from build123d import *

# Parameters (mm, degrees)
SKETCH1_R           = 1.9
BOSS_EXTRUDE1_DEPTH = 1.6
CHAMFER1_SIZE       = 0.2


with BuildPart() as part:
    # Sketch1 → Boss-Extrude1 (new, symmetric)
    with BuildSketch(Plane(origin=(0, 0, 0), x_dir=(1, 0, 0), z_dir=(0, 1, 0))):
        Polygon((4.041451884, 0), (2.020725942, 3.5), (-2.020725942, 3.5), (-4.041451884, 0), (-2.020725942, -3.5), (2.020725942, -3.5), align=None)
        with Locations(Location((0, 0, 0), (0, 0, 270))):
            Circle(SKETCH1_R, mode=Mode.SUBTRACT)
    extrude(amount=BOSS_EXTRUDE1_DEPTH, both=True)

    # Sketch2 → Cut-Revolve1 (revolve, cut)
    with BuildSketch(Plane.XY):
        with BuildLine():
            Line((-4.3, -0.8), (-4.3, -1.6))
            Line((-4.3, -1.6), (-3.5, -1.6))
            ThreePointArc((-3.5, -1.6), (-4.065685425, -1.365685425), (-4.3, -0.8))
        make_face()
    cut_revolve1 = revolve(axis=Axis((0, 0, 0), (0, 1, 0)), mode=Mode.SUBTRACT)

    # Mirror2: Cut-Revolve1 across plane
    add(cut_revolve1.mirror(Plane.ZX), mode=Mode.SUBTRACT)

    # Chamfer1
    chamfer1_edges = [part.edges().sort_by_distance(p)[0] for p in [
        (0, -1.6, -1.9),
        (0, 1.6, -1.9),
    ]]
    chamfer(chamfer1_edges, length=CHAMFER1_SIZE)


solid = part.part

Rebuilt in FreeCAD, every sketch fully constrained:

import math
import FreeCAD as App
import Part
import Sketcher

V = App.Vector
Q = App.Units.Quantity


def edges_at(feature, points):
    """Names of the edges that pass closest to the given points."""
    edges = feature.Shape.Edges
    near = lambda p: min(range(len(edges)), key=lambda i: edges[i].distToShape(Part.Vertex(*p))[0])
    return sorted({f"Edge{near(p) + 1}" for p in points})


def add_polygon(sketch, points):
    """Adds a closed chain of lines whose ends are joined by coincident constraints."""
    first, n = sketch.GeometryCount, len(points)
    for a, b in zip(points, points[1:] + points[:1]):
        sketch.addGeometry(Part.LineSegment(App.Vector(*a, 0), App.Vector(*b, 0)), False)
    for i in range(n):
        sketch.addConstraint(Sketcher.Constraint("Coincident", first + i, 2, first + (i + 1) % n, 1))

doc = App.newDocument("Part")
body = doc.addObject("PartDesign::Body", "Body")

# Sketch on XZ plane
sketch1 = body.newObject("Sketcher::SketchObject", "Sketch")
sketch1.AttachmentSupport = (doc.getObject("XZ_Plane"), [""])
sketch1.MapMode = "FlatFace"
add_polygon(sketch1, [(4, 0), (2, -3.5), (-2, -3.5), (-4, 0), (-2, 3.5), (2, 3.5)])  # lines 0-5
sketch1.addGeometry(Part.Circle(V(0, 0, 0), V(0, 0, 1), 1.9), False)  # 6
sketch1.addConstraint([
    Sketcher.Constraint("Horizontal", 1),
    Sketcher.Constraint("Horizontal", 4),
    Sketcher.Constraint("Coincident", 6, 3, -1, 1),
    Sketcher.Constraint("Symmetric", 0, 2, 3, 2, -1, 1),
    Sketcher.Constraint("Symmetric", 2, 2, 5, 2, -1, 1),
    Sketcher.Constraint("PointOnObject", 2, 2, -1),
    Sketcher.Constraint("Parallel", 2, 5),
    Sketcher.Constraint("Vertical", 1, 2, 3, 2),
    Sketcher.Constraint("Diameter", 6, Q("3.8 mm")),
    Sketcher.Constraint("Angle", 0, Q("-120 deg")),
    Sketcher.Constraint("DistanceY", 1, 2, 3, 2, Q("7 mm")),
    Sketcher.Constraint("DistanceX", 1, 2, 1, 1, Q("4.041452 mm")),
])
pad1 = body.newObject("PartDesign::Pad", "Pad")
pad1.Profile = sketch1
pad1.Length = 3.2
pad1.Midplane = True

# Sketch on XY plane
sketch2 = body.newObject("Sketcher::SketchObject", "Sketch001")
sketch2.AttachmentSupport = (doc.getObject("XY_Plane"), [""])
sketch2.MapMode = "FlatFace"
sketch2.addGeometry([
    Part.LineSegment(V(-4.3, -0.8, 0), V(-4.3, -1.6, 0)),
    Part.LineSegment(V(-4.3, -1.6, 0), V(-3.5, -1.6, 0)),
    Part.ArcOfCircle(Part.Circle(V(-3.5, -0.8, 0), V(0, 0, 1), 0.8), math.radians(180), math.radians(270)),
], False)
sketch2.addConstraint([
    Sketcher.Constraint("Coincident", 0, 2, 1, 1),
    Sketcher.Constraint("Tangent", 1, 2, 2, 2),
    Sketcher.Constraint("Tangent", 2, 1, 0, 1),
    Sketcher.Constraint("Vertical", 0),
    Sketcher.Constraint("Horizontal", 1),
    Sketcher.Constraint("Radius", 2, Q("0.8 mm")),
    Sketcher.Constraint("DistanceX", 2, 3, -1, 1, Q("3.5 mm")),
    Sketcher.Constraint("DistanceY", 2, 3, -1, 1, Q("0.8 mm")),
])
groove = body.newObject("PartDesign::Groove", "Groove")
groove.Profile = sketch2
groove.ReferenceAxis = (sketch2, ["V_Axis"])
groove.Angle = 360
doc.recompute()

mirrored = body.newObject("PartDesign::Mirrored", "Mirrored")
mirrored.Originals = [groove]
mirrored.MirrorPlane = (doc.getObject("XZ_Plane"), [""])
body.Tip = mirrored
doc.recompute()

chamfer = body.newObject("PartDesign::Chamfer", "Chamfer")
chamfer.Base = (mirrored, edges_at(mirrored, [(0, -1.6, -1.9), (0, 1.6, -1.9)]))
chamfer.Size = 0.2

doc.recompute()
